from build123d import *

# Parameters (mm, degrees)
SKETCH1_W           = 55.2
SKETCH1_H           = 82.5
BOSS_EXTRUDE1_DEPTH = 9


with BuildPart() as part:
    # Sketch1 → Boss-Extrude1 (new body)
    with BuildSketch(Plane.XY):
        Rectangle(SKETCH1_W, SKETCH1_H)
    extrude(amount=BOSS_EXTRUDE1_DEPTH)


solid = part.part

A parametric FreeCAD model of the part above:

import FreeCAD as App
import Part
import Sketcher

doc = App.newDocument("Part")
params = doc.addObject("Spreadsheet::Sheet", "Params")
for row, (alias, value) in enumerate([
    ("sketch1_width", "55.2 mm"),
    ("sketch1_height", "82.5 mm"),
    ("pad1_length", "9 mm"),
], start=1):
    params.set(f"A{row}", alias)
    params.set(f"B{row}", "=" + value)
    params.setAlias(f"B{row}", alias)

body = doc.addObject("PartDesign::Body", "Body")

sketch1 = body.newObject("Sketcher::SketchObject", "Sketch")
sketch1.AttachmentSupport = (doc.getObject("XY_Plane"), [""])
sketch1.MapMode = "FlatFace"
sketch1.addGeometry([
    Part.LineSegment(App.Vector(-27.6, 41.25, 0), App.Vector(-27.6, -41.25, 0)),
    Part.LineSegment(App.Vector(-27.6, -41.25, 0), App.Vector(27.6, -41.25, 0)),
    Part.LineSegment(App.Vector(27.6, -41.25, 0), App.Vector(27.6, 41.25, 0)),
    Part.LineSegment(App.Vector(27.6, 41.25, 0), App.Vector(-27.6, 41.25, 0)),
], False)
sketch1.addConstraint([
    Sketcher.Constraint("Coincident", 0, 2, 1, 1),
    Sketcher.Constraint("Coincident", 1, 2, 2, 1),
    Sketcher.Constraint("Coincident", 2, 2, 3, 1),
    Sketcher.Constraint("Coincident", 3, 2, 0, 1),
    Sketcher.Constraint("Vertical", 0),
    Sketcher.Constraint("Horizontal", 1),
    Sketcher.Constraint("Vertical", 2),
    Sketcher.Constraint("Horizontal", 3),
    Sketcher.Constraint("Symmetric", 0, 2, 2, 2, -1, 1),
    Sketcher.Constraint("DistanceX", 1, 1, 1, 2, 55.2),
    Sketcher.Constraint("DistanceY", 0, 2, 0, 1, 82.5),
])
sketch1.setExpression("Constraints[9]", "Params.sketch1_width")
sketch1.setExpression("Constraints[10]", "Params.sketch1_height")
pad1 = body.newObject("PartDesign::Pad", "Pad")
pad1.Profile = sketch1
pad1.setExpression("Length", "Params.pad1_length")

doc.recompute()
